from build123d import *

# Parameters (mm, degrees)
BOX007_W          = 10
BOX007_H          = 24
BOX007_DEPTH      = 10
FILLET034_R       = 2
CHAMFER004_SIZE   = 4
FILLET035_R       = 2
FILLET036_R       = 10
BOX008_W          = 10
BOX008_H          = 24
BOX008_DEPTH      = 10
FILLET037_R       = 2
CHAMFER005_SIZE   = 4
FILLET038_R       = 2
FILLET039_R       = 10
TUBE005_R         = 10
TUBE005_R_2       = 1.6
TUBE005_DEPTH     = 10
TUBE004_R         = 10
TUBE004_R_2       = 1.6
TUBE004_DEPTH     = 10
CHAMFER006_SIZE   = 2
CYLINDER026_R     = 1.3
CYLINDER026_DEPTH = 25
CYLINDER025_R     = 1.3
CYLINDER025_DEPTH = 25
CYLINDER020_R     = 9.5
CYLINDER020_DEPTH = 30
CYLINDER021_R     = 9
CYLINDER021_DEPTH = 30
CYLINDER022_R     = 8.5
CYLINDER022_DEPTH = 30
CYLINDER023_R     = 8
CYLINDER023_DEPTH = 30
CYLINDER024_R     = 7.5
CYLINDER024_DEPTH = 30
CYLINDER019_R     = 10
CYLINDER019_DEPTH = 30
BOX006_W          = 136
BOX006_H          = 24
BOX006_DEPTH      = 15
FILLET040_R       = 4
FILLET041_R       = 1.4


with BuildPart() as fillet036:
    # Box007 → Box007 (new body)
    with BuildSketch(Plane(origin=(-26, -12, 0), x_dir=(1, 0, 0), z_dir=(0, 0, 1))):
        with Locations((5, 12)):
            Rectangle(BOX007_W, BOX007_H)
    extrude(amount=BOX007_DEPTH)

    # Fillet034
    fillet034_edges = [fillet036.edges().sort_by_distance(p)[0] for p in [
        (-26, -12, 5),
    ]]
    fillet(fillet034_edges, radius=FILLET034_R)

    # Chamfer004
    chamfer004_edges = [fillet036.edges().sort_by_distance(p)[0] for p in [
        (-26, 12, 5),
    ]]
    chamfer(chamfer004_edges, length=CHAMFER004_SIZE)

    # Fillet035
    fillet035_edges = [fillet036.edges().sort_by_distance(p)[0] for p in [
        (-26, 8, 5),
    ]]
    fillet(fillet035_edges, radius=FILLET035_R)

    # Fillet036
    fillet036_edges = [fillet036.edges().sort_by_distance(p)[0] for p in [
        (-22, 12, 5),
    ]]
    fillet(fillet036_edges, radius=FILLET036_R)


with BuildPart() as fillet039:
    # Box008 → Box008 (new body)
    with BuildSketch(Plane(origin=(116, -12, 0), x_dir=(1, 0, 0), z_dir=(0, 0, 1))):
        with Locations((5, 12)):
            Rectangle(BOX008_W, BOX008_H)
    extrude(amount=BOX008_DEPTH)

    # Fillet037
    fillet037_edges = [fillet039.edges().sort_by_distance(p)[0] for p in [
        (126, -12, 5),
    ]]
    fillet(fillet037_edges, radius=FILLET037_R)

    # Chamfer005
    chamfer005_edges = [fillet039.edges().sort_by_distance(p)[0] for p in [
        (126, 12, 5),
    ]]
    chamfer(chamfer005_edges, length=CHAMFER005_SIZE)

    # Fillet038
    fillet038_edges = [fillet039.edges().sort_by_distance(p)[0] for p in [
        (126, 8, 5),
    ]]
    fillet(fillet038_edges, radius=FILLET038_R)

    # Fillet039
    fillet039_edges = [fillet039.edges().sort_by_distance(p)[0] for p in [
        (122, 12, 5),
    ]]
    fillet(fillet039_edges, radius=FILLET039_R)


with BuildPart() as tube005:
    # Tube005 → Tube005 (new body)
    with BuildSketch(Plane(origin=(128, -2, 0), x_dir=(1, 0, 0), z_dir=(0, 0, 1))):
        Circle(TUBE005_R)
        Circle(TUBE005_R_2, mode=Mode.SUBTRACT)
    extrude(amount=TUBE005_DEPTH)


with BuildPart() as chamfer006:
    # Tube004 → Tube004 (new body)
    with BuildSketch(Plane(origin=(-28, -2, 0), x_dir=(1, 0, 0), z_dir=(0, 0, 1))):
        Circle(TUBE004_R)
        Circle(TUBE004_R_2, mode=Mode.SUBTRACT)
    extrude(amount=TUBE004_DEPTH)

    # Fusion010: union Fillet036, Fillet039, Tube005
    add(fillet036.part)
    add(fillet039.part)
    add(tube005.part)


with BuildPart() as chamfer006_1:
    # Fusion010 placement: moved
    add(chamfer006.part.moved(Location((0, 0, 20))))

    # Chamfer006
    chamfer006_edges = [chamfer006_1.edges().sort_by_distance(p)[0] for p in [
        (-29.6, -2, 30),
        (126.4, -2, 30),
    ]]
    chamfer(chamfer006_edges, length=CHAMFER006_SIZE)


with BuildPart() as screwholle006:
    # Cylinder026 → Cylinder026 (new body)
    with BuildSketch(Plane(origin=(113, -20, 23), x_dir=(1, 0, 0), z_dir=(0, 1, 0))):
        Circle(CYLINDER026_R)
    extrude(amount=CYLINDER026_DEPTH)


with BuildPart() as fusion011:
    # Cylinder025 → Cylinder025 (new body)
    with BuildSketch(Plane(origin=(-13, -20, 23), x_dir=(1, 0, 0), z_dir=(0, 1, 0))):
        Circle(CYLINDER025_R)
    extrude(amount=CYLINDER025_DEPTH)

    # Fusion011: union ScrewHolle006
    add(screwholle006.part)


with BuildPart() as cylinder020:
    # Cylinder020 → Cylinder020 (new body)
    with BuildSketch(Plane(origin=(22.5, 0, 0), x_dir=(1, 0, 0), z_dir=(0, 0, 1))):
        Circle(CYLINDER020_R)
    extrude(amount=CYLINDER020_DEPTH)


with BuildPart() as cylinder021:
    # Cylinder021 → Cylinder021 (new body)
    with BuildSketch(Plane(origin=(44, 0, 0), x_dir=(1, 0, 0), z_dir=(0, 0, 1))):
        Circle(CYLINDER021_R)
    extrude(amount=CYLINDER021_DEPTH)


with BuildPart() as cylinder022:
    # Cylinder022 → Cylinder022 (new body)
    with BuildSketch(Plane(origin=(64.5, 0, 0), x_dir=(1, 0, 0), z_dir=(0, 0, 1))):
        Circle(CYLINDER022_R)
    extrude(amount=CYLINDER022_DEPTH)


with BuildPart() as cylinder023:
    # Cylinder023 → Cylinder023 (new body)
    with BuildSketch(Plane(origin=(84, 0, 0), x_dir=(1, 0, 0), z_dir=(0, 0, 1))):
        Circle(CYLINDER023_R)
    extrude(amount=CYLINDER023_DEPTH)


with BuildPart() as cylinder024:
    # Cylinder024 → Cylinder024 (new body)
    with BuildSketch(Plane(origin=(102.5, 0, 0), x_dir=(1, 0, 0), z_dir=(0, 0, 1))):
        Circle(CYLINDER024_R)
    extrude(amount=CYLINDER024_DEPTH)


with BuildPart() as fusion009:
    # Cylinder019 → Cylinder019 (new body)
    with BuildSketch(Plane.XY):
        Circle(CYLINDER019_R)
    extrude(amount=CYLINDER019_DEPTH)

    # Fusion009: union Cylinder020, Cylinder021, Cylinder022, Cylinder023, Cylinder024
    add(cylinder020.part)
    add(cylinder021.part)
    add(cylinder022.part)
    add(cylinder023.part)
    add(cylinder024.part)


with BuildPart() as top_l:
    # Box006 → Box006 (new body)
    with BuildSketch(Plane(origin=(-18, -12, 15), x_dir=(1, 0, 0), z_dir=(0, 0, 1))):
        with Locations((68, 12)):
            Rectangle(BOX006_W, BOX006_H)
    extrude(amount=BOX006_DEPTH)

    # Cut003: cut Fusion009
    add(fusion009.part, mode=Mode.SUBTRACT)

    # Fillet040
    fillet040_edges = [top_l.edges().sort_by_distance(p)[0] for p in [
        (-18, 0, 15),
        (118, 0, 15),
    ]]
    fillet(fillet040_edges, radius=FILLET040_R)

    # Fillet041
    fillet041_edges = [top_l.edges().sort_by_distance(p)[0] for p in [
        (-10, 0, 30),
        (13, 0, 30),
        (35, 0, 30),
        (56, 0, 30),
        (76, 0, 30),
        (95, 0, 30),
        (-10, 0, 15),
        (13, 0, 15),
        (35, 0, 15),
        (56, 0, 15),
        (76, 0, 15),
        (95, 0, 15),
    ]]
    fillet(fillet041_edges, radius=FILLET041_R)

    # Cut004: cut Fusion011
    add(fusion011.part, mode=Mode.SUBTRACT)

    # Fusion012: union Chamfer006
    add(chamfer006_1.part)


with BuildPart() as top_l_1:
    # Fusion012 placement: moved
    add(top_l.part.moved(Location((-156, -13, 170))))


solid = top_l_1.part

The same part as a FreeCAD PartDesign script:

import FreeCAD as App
import Part
import Sketcher
Q = App.Units.Quantity


def edges_at(feature, points):
    """Names of the edges that pass closest to the given points."""
    edges = feature.Shape.Edges
    near = lambda p: min(range(len(edges)), key=lambda i: edges[i].distToShape(Part.Vertex(*p))[0])
    return sorted({f"Edge{near(p) + 1}" for p in points})

doc = App.newDocument("Part")
body = doc.addObject("PartDesign::Body", "Body")

sketch1 = body.newObject("Sketcher::SketchObject", "Sketch")
sketch1.AttachmentSupport = (doc.getObject("XY_Plane"), [""])
sketch1.MapMode = "FlatFace"
sketch1.addGeometry([
    Part.LineSegment(App.Vector(-26, 12, 0), App.Vector(-26, -12, 0)),
    Part.LineSegment(App.Vector(-26, -12, 0), App.Vector(-16, -12, 0)),
    Part.LineSegment(App.Vector(-16, -12, 0), App.Vector(-16, 12, 0)),
    Part.LineSegment(App.Vector(-16, 12, 0), App.Vector(-26, 12, 0)),
], False)
sketch1.addConstraint([
    Sketcher.Constraint("Coincident", 0, 2, 1, 1),
    Sketcher.Constraint("Coincident", 1, 2, 2, 1),
    Sketcher.Constraint("Coincident", 2, 2, 3, 1),
    Sketcher.Constraint("Coincident", 3, 2, 0, 1),
    Sketcher.Constraint("Vertical", 0),
    Sketcher.Constraint("Horizontal", 1),
    Sketcher.Constraint("Vertical", 2),
    Sketcher.Constraint("Horizontal", 3),
    Sketcher.Constraint("DistanceX", 1, 1, 1, 2, Q("10 mm")),
    Sketcher.Constraint("DistanceY", 0, 2, 0, 1, Q("24 mm")),
    Sketcher.Constraint("DistanceX", 0, 2, -1, 1, Q("26 mm")),
    Sketcher.Constraint("DistanceY", 0, 2, -1, 1, Q("12 mm")),
])
pad1 = body.newObject("PartDesign::Pad", "Pad")
pad1.Profile = sketch1
pad1.Length = 10
doc.recompute()

fillet = body.newObject("PartDesign::Fillet", "Fillet")
fillet.Base = (pad1, edges_at(pad1, [(-26, -12, 5)]))
fillet.Radius = 2
doc.recompute()

chamfer = body.newObject("PartDesign::Chamfer", "Chamfer")
chamfer.Base = (fillet, edges_at(fillet, [(-26, 12, 5)]))
chamfer.Size = 4
doc.recompute()

fillet2 = body.newObject("PartDesign::Fillet", "Fillet001")
fillet2.Base = (chamfer, edges_at(chamfer, [(-26, 8, 5)]))
fillet2.Radius = 2
doc.recompute()

fillet3 = body.newObject("PartDesign::Fillet", "Fillet002")
fillet3.Base = (fillet2, edges_at(fillet2, [(-22, 12, 5)]))
fillet3.Radius = 10
body2 = doc.addObject("PartDesign::Body", "Body001")

sketch2 = body2.newObject("Sketcher::SketchObject", "Sketch001")
sketch2.AttachmentSupport = (doc.getObject("XY_Plane001"), [""])
sketch2.MapMode = "FlatFace"
sketch2.addGeometry([
    Part.LineSegment(App.Vector(116, 12, 0), App.Vector(116, -12, 0)),
    Part.LineSegment(App.Vector(116, -12, 0), App.Vector(126, -12, 0)),
    Part.LineSegment(App.Vector(126, -12, 0), App.Vector(126, 12, 0)),
    Part.LineSegment(App.Vector(126, 12, 0), App.Vector(116, 12, 0)),
], False)
sketch2.addConstraint([
    Sketcher.Constraint("Coincident", 0, 2, 1, 1),
    Sketcher.Constraint("Coincident", 1, 2, 2, 1),
    Sketcher.Constraint("Coincident", 2, 2, 3, 1),
    Sketcher.Constraint("Coincident", 3, 2, 0, 1),
    Sketcher.Constraint("Vertical", 0),
    Sketcher.Constraint("Horizontal", 1),
    Sketcher.Constraint("Vertical", 2),
    Sketcher.Constraint("Horizontal", 3),
    Sketcher.Constraint("DistanceX", 1, 1, 1, 2, Q("10 mm")),
    Sketcher.Constraint("DistanceY", 0, 2, 0, 1, Q("24 mm")),
    Sketcher.Constraint("DistanceX", -1, 1, 0, 2, Q("116 mm")),
    Sketcher.Constraint("DistanceY", 0, 2, -1, 1, Q("12 mm")),
])
pad2 = body2.newObject("PartDesign::Pad", "Pad001")
pad2.Profile = sketch2
pad2.Length = 10
doc.recompute()

fillet4 = body2.newObject("PartDesign::Fillet", "Fillet003")
fillet4.Base = (pad2, edges_at(pad2, [(126, -12, 5)]))
fillet4.Radius = 2
doc.recompute()

chamfer2 = body2.newObject("PartDesign::Chamfer", "Chamfer001")
chamfer2.Base = (fillet4, edges_at(fillet4, [(126, 12, 5)]))
chamfer2.Size = 4
doc.recompute()

fillet5 = body2.newObject("PartDesign::Fillet", "Fillet004")
fillet5.Base = (chamfer2, edges_at(chamfer2, [(126, 8, 5)]))
fillet5.Radius = 2
doc.recompute()

fillet6 = body2.newObject("PartDesign::Fillet", "Fillet005")
fillet6.Base = (fillet5, edges_at(fillet5, [(122, 12, 5)]))
fillet6.Radius = 10
body3 = doc.addObject("PartDesign::Body", "Body002")

sketch3 = body3.newObject("Sketcher::SketchObject", "Sketch002")
sketch3.AttachmentSupport = (doc.getObject("XY_Plane002"), [""])
sketch3.MapMode = "FlatFace"
sketch3.addGeometry([
    Part.Circle(App.Vector(128, -2, 0), App.Vector(0, 0, 1), 10),
    Part.Circle(App.Vector(128, -2, 0), App.Vector(0, 0, 1), 1.6),
], False)
sketch3.addConstraint([
    Sketcher.Constraint("Coincident", 1, 3, 0, 3),
    Sketcher.Constraint("Diameter", 0, Q("20 mm")),
    Sketcher.Constraint("Diameter", 1, Q("3.2 mm")),
    Sketcher.Constraint("DistanceX", -1, 1, 0, 3, Q("128 mm")),
    Sketcher.Constraint("DistanceY", 0, 3, -1, 1, Q("2 mm")),
])
pad3 = body3.newObject("PartDesign::Pad", "Pad002")
pad3.Profile = sketch3
pad3.Length = 10
body4 = doc.addObject("PartDesign::Body", "Body003")
body4.AllowCompound = True

sketch4 = body4.newObject("Sketcher::SketchObject", "Sketch003")
sketch4.AttachmentSupport = (doc.getObject("XY_Plane003"), [""])
sketch4.MapMode = "FlatFace"
sketch4.addGeometry([
    Part.Circle(App.Vector(-28, -2, 0), App.Vector(0, 0, 1), 10),
    Part.Circle(App.Vector(-28, -2, 0), App.Vector(0, 0, 1), 1.6),
], False)
sketch4.addConstraint([
    Sketcher.Constraint("Coincident", 1, 3, 0, 3),
    Sketcher.Constraint("Diameter", 0, Q("20 mm")),
    Sketcher.Constraint("Diameter", 1, Q("3.2 mm")),
    Sketcher.Constraint("DistanceX", 0, 3, -1, 1, Q("28 mm")),
    Sketcher.Constraint("DistanceY", 0, 3, -1, 1, Q("2 mm")),
])
pad4 = body4.newObject("PartDesign::Pad", "Pad003")
pad4.Profile = sketch4
pad4.Length = 10
doc.recompute()

boolean = body4.newObject("PartDesign::Boolean", "Boolean")
boolean.Type = "Fuse"
boolean.addObjects([body])
doc.recompute()

boolean2 = body4.newObject("PartDesign::Boolean", "Boolean001")
boolean2.Type = "Fuse"
boolean2.addObjects([body2])
doc.recompute()

boolean3 = body4.newObject("PartDesign::Boolean", "Boolean002")
boolean3.Type = "Fuse"
boolean3.addObjects([body3])
body5 = doc.addObject("PartDesign::Body", "Body004")
body5.AllowCompound = True
doc.recompute()

body4.Placement = App.Placement(App.Vector(0, 0, 20), App.Rotation(App.Vector(0, 0, 1), 0))
boolean4 = body5.newObject("PartDesign::Boolean", "Boolean003")
boolean4.Type = "Fuse"
boolean4.addObjects([body4])
doc.recompute()

chamfer3 = body5.newObject("PartDesign::Chamfer", "Chamfer002")
chamfer3.Base = (boolean4, edges_at(boolean4, [(-29.6, -2, 30), (126.4, -2, 30)]))
chamfer3.Size = 2
body6 = doc.addObject("PartDesign::Body", "Body005")

sketch5 = body6.newObject("Sketcher::SketchObject", "Sketch004")
sketch5.AttachmentSupport = (doc.getObject("XZ_Plane005"), [""])
sketch5.MapMode = "FlatFace"
sketch5.AttachmentOffset = App.Placement(App.Vector(0, 0, 20), App.Rotation())
sketch5.addGeometry(Part.Circle(App.Vector(113, 23, 0), App.Vector(0, 0, 1), 1.3), False)
sketch5.addConstraint([
    Sketcher.Constraint("Diameter", 0, Q("2.6 mm")),
    Sketcher.Constraint("DistanceX", -1, 1, 0, 3, Q("113 mm")),
    Sketcher.Constraint("DistanceY", -1, 1, 0, 3, Q("23 mm")),
])
pad5 = body6.newObject("PartDesign::Pad", "Pad004")
pad5.Profile = sketch5
pad5.Length = 25
pad5.Reversed = True
body7 = doc.addObject("PartDesign::Body", "Body006")
body7.AllowCompound = True

sketch6 = body7.newObject("Sketcher::SketchObject", "Sketch005")
sketch6.AttachmentSupport = (doc.getObject("XZ_Plane006"), [""])
sketch6.MapMode = "FlatFace"
sketch6.AttachmentOffset = App.Placement(App.Vector(0, 0, 20), App.Rotation())
sketch6.addGeometry(Part.Circle(App.Vector(-13, 23, 0), App.Vector(0, 0, 1), 1.3), False)
sketch6.addConstraint([
    Sketcher.Constraint("Diameter", 0, Q("2.6 mm")),
    Sketcher.Constraint("DistanceX", 0, 3, -1, 1, Q("13 mm")),
    Sketcher.Constraint("DistanceY", -1, 1, 0, 3, Q("23 mm")),
])
pad6 = body7.newObject("PartDesign::Pad", "Pad005")
pad6.Profile = sketch6
pad6.Length = 25
pad6.Reversed = True
doc.recompute()

boolean5 = body7.newObject("PartDesign::Boolean", "Boolean004")
boolean5.Type = "Fuse"
boolean5.addObjects([body6])
body8 = doc.addObject("PartDesign::Body", "Body007")

sketch7 = body8.newObject("Sketcher::SketchObject", "Sketch006")
sketch7.AttachmentSupport = (doc.getObject("XY_Plane007"), [""])
sketch7.MapMode = "FlatFace"
sketch7.addGeometry(Part.Circle(App.Vector(22, 0, 0), App.Vector(0, 0, 1), 10), False)
sketch7.addConstraint([
    Sketcher.Constraint("PointOnObject", 0, 3, -1),
    Sketcher.Constraint("Diameter", 0, Q("19 mm")),
    Sketcher.Constraint("DistanceX", -1, 1, 0, 3, Q("22.5 mm")),
])
pad7 = body8.newObject("PartDesign::Pad", "Pad006")
pad7.Profile = sketch7
pad7.Length = 30
body9 = doc.addObject("PartDesign::Body", "Body008")

sketch8 = body9.newObject("Sketcher::SketchObject", "Sketch007")
sketch8.AttachmentSupport = (doc.getObject("XY_Plane008"), [""])
sketch8.MapMode = "FlatFace"
sketch8.addGeometry(Part.Circle(App.Vector(44, 0, 0), App.Vector(0, 0, 1), 9), False)
sketch8.addConstraint([
    Sketcher.Constraint("PointOnObject", 0, 3, -1),
    Sketcher.Constraint("Diameter", 0, Q("18 mm")),
    Sketcher.Constraint("DistanceX", -1, 1, 0, 3, Q("44 mm")),
])
pad8 = body9.newObject("PartDesign::Pad", "Pad007")
pad8.Profile = sketch8
pad8.Length = 30
body10 = doc.addObject("PartDesign::Body", "Body009")

sketch9 = body10.newObject("Sketcher::SketchObject", "Sketch008")
sketch9.AttachmentSupport = (doc.getObject("XY_Plane009"), [""])
sketch9.MapMode = "FlatFace"
sketch9.addGeometry(Part.Circle(App.Vector(64, 0, 0), App.Vector(0, 0, 1), 8), False)
sketch9.addConstraint([
    Sketcher.Constraint("PointOnObject", 0, 3, -1),
    Sketcher.Constraint("Diameter", 0, Q("17 mm")),
    Sketcher.Constraint("DistanceX", -1, 1, 0, 3, Q("64.5 mm")),
])
pad9 = body10.newObject("PartDesign::Pad", "Pad008")
pad9.Profile = sketch9
pad9.Length = 30
body11 = doc.addObject("PartDesign::Body", "Body010")

sketch10 = body11.newObject("Sketcher::SketchObject", "Sketch009")
sketch10.AttachmentSupport = (doc.getObject("XY_Plane010"), [""])
sketch10.MapMode = "FlatFace"
sketch10.addGeometry(Part.Circle(App.Vector(84, 0, 0), App.Vector(0, 0, 1), 8), False)
sketch10.addConstraint([
    Sketcher.Constraint("PointOnObject", 0, 3, -1),
    Sketcher.Constraint("Diameter", 0, Q("16 mm")),
    Sketcher.Constraint("DistanceX", -1, 1, 0, 3, Q("84 mm")),
])
pad10 = body11.newObject("PartDesign::Pad", "Pad009")
pad10.Profile = sketch10
pad10.Length = 30
body12 = doc.addObject("PartDesign::Body", "Body011")

sketch11 = body12.newObject("Sketcher::SketchObject", "Sketch010")
sketch11.AttachmentSupport = (doc.getObject("XY_Plane011"), [""])
sketch11.MapMode = "FlatFace"
sketch11.addGeometry(Part.Circle(App.Vector(102, 0, 0), App.Vector(0, 0, 1), 8), False)
sketch11.addConstraint([
    Sketcher.Constraint("PointOnObject", 0, 3, -1),
    Sketcher.Constraint("Diameter", 0, Q("15 mm")),
    Sketcher.Constraint("DistanceX", -1, 1, 0, 3, Q("102.5 mm")),
])
pad11 = body12.newObject("PartDesign::Pad", "Pad010")
pad11.Profile = sketch11
pad11.Length = 30
body13 = doc.addObject("PartDesign::Body", "Body012")
body13.AllowCompound = True

sketch12 = body13.newObject("Sketcher::SketchObject", "Sketch011")
sketch12.AttachmentSupport = (doc.getObject("XY_Plane012"), [""])
sketch12.MapMode = "FlatFace"
sketch12.addGeometry(Part.Circle(App.Vector(0, 0, 0), App.Vector(0, 0, 1), 10), False)
sketch12.addConstraint([
    Sketcher.Constraint("Coincident", 0, 3, -1, 1),
    Sketcher.Constraint("Diameter", 0, Q("20 mm")),
])
pad12 = body13.newObject("PartDesign::Pad", "Pad011")
pad12.Profile = sketch12
pad12.Length = 30
doc.recompute()

boolean6 = body13.newObject("PartDesign::Boolean", "Boolean005")
boolean6.Type = "Fuse"
boolean6.addObjects([body8])
doc.recompute()

boolean7 = body13.newObject("PartDesign::Boolean", "Boolean006")
boolean7.Type = "Fuse"
boolean7.addObjects([body9])
doc.recompute()

boolean8 = body13.newObject("PartDesign::Boolean", "Boolean007")
boolean8.Type = "Fuse"
boolean8.addObjects([body10])
doc.recompute()

boolean9 = body13.newObject("PartDesign::Boolean", "Boolean008")
boolean9.Type = "Fuse"
boolean9.addObjects([body11])
doc.recompute()

boolean10 = body13.newObject("PartDesign::Boolean", "Boolean009")
boolean10.Type = "Fuse"
boolean10.addObjects([body12])
body14 = doc.addObject("PartDesign::Body", "Body013")

sketch13 = body14.newObject("Sketcher::SketchObject", "Sketch012")
sketch13.AttachmentSupport = (doc.getObject("XY_Plane013"), [""])
sketch13.MapMode = "FlatFace"
sketch13.AttachmentOffset = App.Placement(App.Vector(0, 0, 15), App.Rotation())
sketch13.addGeometry([
    Part.LineSegment(App.Vector(-18, 12, 0), App.Vector(-18, -12, 0)),
    Part.LineSegment(App.Vector(-18, -12, 0), App.Vector(118, -12, 0)),
    Part.LineSegment(App.Vector(118, -12, 0), App.Vector(118, 12, 0)),
    Part.LineSegment(App.Vector(118, 12, 0), App.Vector(-18, 12, 0)),
], False)
sketch13.addConstraint([
    Sketcher.Constraint("Coincident", 0, 2, 1, 1),
    Sketcher.Constraint("Coincident", 1, 2, 2, 1),
    Sketcher.Constraint("Coincident", 2, 2, 3, 1),
    Sketcher.Constraint("Coincident", 3, 2, 0, 1),
    Sketcher.Constraint("Vertical", 0),
    Sketcher.Constraint("Horizontal", 1),
    Sketcher.Constraint("Vertical", 2),
    Sketcher.Constraint("Horizontal", 3),
    Sketcher.Constraint("DistanceX", 1, 1, 1, 2, Q("136 mm")),
    Sketcher.Constraint("DistanceY", 0, 2, 0, 1, Q("24 mm")),
    Sketcher.Constraint("DistanceX", 0, 2, -1, 1, Q("18 mm")),
    Sketcher.Constraint("DistanceY", 0, 2, -1, 1, Q("12 mm")),
])
pad13 = body14.newObject("PartDesign::Pad", "Pad012")
pad13.Profile = sketch13
pad13.Length = 15
doc.recompute()

boolean11 = body14.newObject("PartDesign::Boolean", "Boolean010")
boolean11.Type = "Cut"
boolean11.addObjects([body13])
doc.recompute()

fillet7 = body14.newObject("PartDesign::Fillet", "Fillet006")
fillet7.Base = (boolean11, edges_at(boolean11, [(-18, 0, 15), (118, 0, 15)]))
fillet7.Radius = 4
doc.recompute()

fillet8 = body14.newObject("PartDesign::Fillet", "Fillet007")
fillet8.Base = (fillet7, edges_at(fillet7, [
    (-10, 0, 30),
    (13, 0, 30),
    (35, 0, 30),
    (56, 0, 30),
    (76, 0, 30),
    (95, 0, 30),
    (-10, 0, 15),
    (13, 0, 15),
    (35, 0, 15),
    (56, 0, 15),
    (76, 0, 15),
    (95, 0, 15),
]))
fillet8.Radius = 1.4
doc.recompute()

boolean12 = body14.newObject("PartDesign::Boolean", "Boolean011")
boolean12.Type = "Cut"
boolean12.addObjects([body7])
doc.recompute()

boolean13 = body14.newObject("PartDesign::Boolean", "Boolean012")
boolean13.Type = "Fuse"
boolean13.addObjects([body5])
body15 = doc.addObject("PartDesign::Body", "Body014")
doc.recompute()

body14.Placement = App.Placement(App.Vector(-156, -13, 170), App.Rotation(App.Vector(0, 0, 1), 0))
boolean14 = body15.newObject("PartDesign::Boolean", "Boolean013")
boolean14.Type = "Fuse"
boolean14.addObjects([body14])

doc.recompute()
